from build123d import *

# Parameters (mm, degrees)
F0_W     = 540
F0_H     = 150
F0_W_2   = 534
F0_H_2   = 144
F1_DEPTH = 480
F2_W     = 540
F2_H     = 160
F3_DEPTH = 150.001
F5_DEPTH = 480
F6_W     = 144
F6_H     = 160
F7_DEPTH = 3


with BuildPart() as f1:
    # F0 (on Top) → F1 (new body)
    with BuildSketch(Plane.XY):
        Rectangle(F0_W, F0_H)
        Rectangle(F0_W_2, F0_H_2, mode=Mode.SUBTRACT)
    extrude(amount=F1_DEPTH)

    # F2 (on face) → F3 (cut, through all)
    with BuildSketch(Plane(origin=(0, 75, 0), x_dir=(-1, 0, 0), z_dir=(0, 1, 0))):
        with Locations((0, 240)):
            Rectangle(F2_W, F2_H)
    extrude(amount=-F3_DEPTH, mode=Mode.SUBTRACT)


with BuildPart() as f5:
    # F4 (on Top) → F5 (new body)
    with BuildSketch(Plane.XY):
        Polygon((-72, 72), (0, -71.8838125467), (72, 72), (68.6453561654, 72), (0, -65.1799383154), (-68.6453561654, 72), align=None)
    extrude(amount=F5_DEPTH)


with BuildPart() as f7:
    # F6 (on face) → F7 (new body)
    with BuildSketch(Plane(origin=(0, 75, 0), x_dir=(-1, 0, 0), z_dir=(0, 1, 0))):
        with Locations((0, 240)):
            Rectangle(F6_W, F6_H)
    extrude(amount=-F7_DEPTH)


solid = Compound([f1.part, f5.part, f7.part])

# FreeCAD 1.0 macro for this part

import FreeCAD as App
import Part
import Sketcher
from FreeCAD import Vector

doc = App.newDocument("Part")
params = doc.addObject("Spreadsheet::Sheet", "Params")
for row, (alias, value) in enumerate([
    ("sketch1_width", "540 mm"),
    ("sketch1_width2", "534 mm"),
    ("sketch1_height", "150 mm"),
    ("sketch1_height2", "144 mm"),
    ("pad1_length", "480 mm"),
    ("sketch2_width", "540 mm"),
    ("sketch2_height", "160 mm"),
    ("pad2_length", "480 mm"),
    ("sketch4_width", "144 mm"),
    ("sketch4_height", "160 mm"),
    ("pad3_length", "3 mm"),
], start=1):
    params.set(f"A{row}", alias)
    params.set(f"B{row}", "=" + value)
    params.setAlias(f"B{row}", alias)

body = doc.addObject("PartDesign::Body", "Body")
body.AllowCompound = True

sketch1 = body.newObject("Sketcher::SketchObject", "Sketch")
sketch1.AttachmentSupport = (doc.getObject("XY_Plane"), [""])
sketch1.MapMode = "FlatFace"
sketch1.addGeometry([
    Part.LineSegment(Vector(-270, 75, 0), Vector(-270, -75, 0)),
    Part.LineSegment(Vector(-270, -75, 0), Vector(270, -75, 0)),
    Part.LineSegment(Vector(270, -75, 0), Vector(270, 75, 0)),
    Part.LineSegment(Vector(270, 75, 0), Vector(-270, 75, 0)),
    Part.LineSegment(Vector(267, -72, 0), Vector(-267, -72, 0)),
    Part.LineSegment(Vector(-267, -72, 0), Vector(-267, 72, 0)),
    Part.LineSegment(Vector(-267, 72, 0), Vector(267, 72, 0)),
    Part.LineSegment(Vector(267, 72, 0), Vector(267, -72, 0)),
], False)
sketch1.addConstraint([
    Sketcher.Constraint("Coincident", 0, 2, 1, 1),
    Sketcher.Constraint("Coincident", 1, 2, 2, 1),
    Sketcher.Constraint("Coincident", 2, 2, 3, 1),
    Sketcher.Constraint("Coincident", 3, 2, 0, 1),
    Sketcher.Constraint("Coincident", 4, 2, 5, 1),
    Sketcher.Constraint("Coincident", 5, 2, 6, 1),
    Sketcher.Constraint("Coincident", 6, 2, 7, 1),
    Sketcher.Constraint("Coincident", 7, 2, 4, 1),
    Sketcher.Constraint("Vertical", 0),
    Sketcher.Constraint("Horizontal", 1),
    Sketcher.Constraint("Vertical", 2),
    Sketcher.Constraint("Horizontal", 3),
    Sketcher.Constraint("Horizontal", 4),
    Sketcher.Constraint("Vertical", 5),
    Sketcher.Constraint("Horizontal", 6),
    Sketcher.Constraint("Vertical", 7),
    Sketcher.Constraint("Symmetric", 0, 2, 2, 2, -1, 1),
    Sketcher.Constraint("Symmetric", 4, 2, 6, 2, -1, 1),
    Sketcher.Constraint("DistanceX", 1, 1, 1, 2, 540.0),
    Sketcher.Constraint("DistanceX", 4, 2, 4, 1, 534.0),
    Sketcher.Constraint("DistanceY", 0, 2, 0, 1, 150.0),
    Sketcher.Constraint("DistanceY", 5, 1, 5, 2, 144.0),
])
sketch1.setExpression("Constraints[18]", "Params.sketch1_width")
sketch1.setExpression("Constraints[19]", "Params.sketch1_width2")
sketch1.setExpression("Constraints[20]", "Params.sketch1_height")
sketch1.setExpression("Constraints[21]", "Params.sketch1_height2")
pad1 = body.newObject("PartDesign::Pad", "Pad")
pad1.Profile = sketch1
pad1.setExpression("Length", "Params.pad1_length")

sketch2 = body.newObject("Sketcher::SketchObject", "Sketch001")
sketch2.AttachmentSupport = (doc.getObject("XZ_Plane"), [""])
sketch2.MapMode = "FlatFace"
sketch2.AttachmentOffset = App.Placement(Vector(0, 0, -75), App.Rotation())
sketch2.addGeometry([
    Part.LineSegment(Vector(270, 320, 0), Vector(270, 160, 0)),
    Part.LineSegment(Vector(270, 160, 0), Vector(-270, 160, 0)),
    Part.LineSegment(Vector(-270, 160, 0), Vector(-270, 320, 0)),
    Part.LineSegment(Vector(-270, 320, 0), Vector(270, 320, 0)),
], False)
sketch2.addConstraint([
    Sketcher.Constraint("Coincident", 0, 2, 1, 1),
    Sketcher.Constraint("Coincident", 1, 2, 2, 1),
    Sketcher.Constraint("Coincident", 2, 2, 3, 1),
    Sketcher.Constraint("Coincident", 3, 2, 0, 1),
    Sketcher.Constraint("Vertical", 0),
    Sketcher.Constraint("Horizontal", 1),
    Sketcher.Constraint("Vertical", 2),
    Sketcher.Constraint("Horizontal", 3),
    Sketcher.Constraint("DistanceX", 1, 2, 1, 1, 540.0),
    Sketcher.Constraint("DistanceY", 0, 2, 0, 1, 160.0),
    Sketcher.Constraint("DistanceX", -1, 1, 0, 2, 270.0),
    Sketcher.Constraint("DistanceY", -1, 1, 0, 2, 160.0),
])
sketch2.setExpression("Constraints[8]", "Params.sketch2_width")
sketch2.setExpression("Constraints[9]", "Params.sketch2_height")
pocket1 = body.newObject("PartDesign::Pocket", "Pocket")
pocket1.Profile = sketch2
pocket1.Type = "ThroughAll"
pocket1.Reversed = True
body2 = doc.addObject("PartDesign::Body", "Body001")

sketch3 = body2.newObject("Sketcher::SketchObject", "Sketch002")
sketch3.AttachmentSupport = (doc.getObject("XY_Plane001"), [""])
sketch3.MapMode = "FlatFace"
sketch3.addGeometry([
    Part.LineSegment(Vector(-72, 72, 0), Vector(0, -71.9, 0)),
    Part.LineSegment(Vector(0, -71.9, 0), Vector(72, 72, 0)),
    Part.LineSegment(Vector(72, 72, 0), Vector(68.6, 72, 0)),
    Part.LineSegment(Vector(68.6, 72, 0), Vector(0, -65.2, 0)),
    Part.LineSegment(Vector(0, -65.2, 0), Vector(-68.6, 72, 0)),
    Part.LineSegment(Vector(-68.6, 72, 0), Vector(-72, 72, 0)),
], False)
sketch3.addConstraint([
    Sketcher.Constraint("Coincident", 0, 2, 1, 1),
    Sketcher.Constraint("Coincident", 1, 2, 2, 1),
    Sketcher.Constraint("Coincident", 2, 2, 3, 1),
    Sketcher.Constraint("Coincident", 3, 2, 4, 1),
    Sketcher.Constraint("Coincident", 4, 2, 5, 1),
    Sketcher.Constraint("Coincident", 5, 2, 0, 1),
    Sketcher.Constraint("Horizontal", 2),
    Sketcher.Constraint("Horizontal", 5),
    Sketcher.Constraint("Symmetric", 2, 2, 4, 2, -2),
    Sketcher.Constraint("PointOnObject", 0, 2, -2),
    Sketcher.Constraint("PointOnObject", 3, 2, -2),
    Sketcher.Constraint("Parallel", 1, 3),
    Sketcher.Constraint("Parallel", 0, 4),
    Sketcher.Constraint("DistanceX", -1, 1, 1, 2, 72.0),
    Sketcher.Constraint("DistanceY", -1, 1, 1, 2, 72.0),
    Sketcher.Constraint("Distance", 0, 160.892982),
    Sketcher.Constraint("Distance", 3, 153.396611),
])
pad2 = body2.newObject("PartDesign::Pad", "Pad001")
pad2.Profile = sketch3
pad2.setExpression("Length", "Params.pad2_length")
body3 = doc.addObject("PartDesign::Body", "Body002")

sketch4 = body3.newObject("Sketcher::SketchObject", "Sketch003")
sketch4.AttachmentSupport = (doc.getObject("XZ_Plane002"), [""])
sketch4.MapMode = "FlatFace"
sketch4.AttachmentOffset = App.Placement(Vector(0, 0, -75), App.Rotation())
sketch4.addGeometry([
    Part.LineSegment(Vector(72, 320, 0), Vector(72, 160, 0)),
    Part.LineSegment(Vector(72, 160, 0), Vector(-72, 160, 0)),
    Part.LineSegment(Vector(-72, 160, 0), Vector(-72, 320, 0)),
    Part.LineSegment(Vector(-72, 320, 0), Vector(72, 320, 0)),
], False)
sketch4.addConstraint([
    Sketcher.Constraint("Coincident", 0, 2, 1, 1),
    Sketcher.Constraint("Coincident", 1, 2, 2, 1),
    Sketcher.Constraint("Coincident", 2, 2, 3, 1),
    Sketcher.Constraint("Coincident", 3, 2, 0, 1),
    Sketcher.Constraint("Vertical", 0),
    Sketcher.Constraint("Horizontal", 1),
    Sketcher.Constraint("Vertical", 2),
    Sketcher.Constraint("Horizontal", 3),
    Sketcher.Constraint("DistanceX", 1, 2, 1, 1, 144.0),
    Sketcher.Constraint("DistanceY", 0, 2, 0, 1, 160.0),
    Sketcher.Constraint("DistanceX", -1, 1, 0, 2, 72.0),
    Sketcher.Constraint("DistanceY", -1, 1, 0, 2, 160.0),
])
sketch4.setExpression("Constraints[8]", "Params.sketch4_width")
sketch4.setExpression("Constraints[9]", "Params.sketch4_height")
pad3 = body3.newObject("PartDesign::Pad", "Pad002")
pad3.Profile = sketch4
pad3.setExpression("Length", "Params.pad3_length")

doc.recompute()
